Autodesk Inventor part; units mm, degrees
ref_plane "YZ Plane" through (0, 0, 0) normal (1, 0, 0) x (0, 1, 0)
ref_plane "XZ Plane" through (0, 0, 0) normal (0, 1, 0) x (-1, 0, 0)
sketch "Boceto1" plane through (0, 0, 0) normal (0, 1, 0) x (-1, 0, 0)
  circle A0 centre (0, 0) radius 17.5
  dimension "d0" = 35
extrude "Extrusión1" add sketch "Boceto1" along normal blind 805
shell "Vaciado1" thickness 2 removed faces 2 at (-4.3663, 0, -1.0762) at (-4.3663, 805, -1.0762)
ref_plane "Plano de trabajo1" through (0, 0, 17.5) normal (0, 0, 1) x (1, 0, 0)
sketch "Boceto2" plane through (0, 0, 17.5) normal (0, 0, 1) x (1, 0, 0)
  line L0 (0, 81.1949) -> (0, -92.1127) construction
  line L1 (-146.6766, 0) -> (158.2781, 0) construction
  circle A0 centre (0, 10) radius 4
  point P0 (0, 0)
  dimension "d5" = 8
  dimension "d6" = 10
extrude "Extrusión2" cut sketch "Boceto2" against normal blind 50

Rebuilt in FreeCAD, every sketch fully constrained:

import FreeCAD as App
import Part
import Sketcher

V = App.Vector


def faces_at(feature, points):
    """Names of the faces that lie closest to the given points."""
    faces = feature.Shape.Faces
    near = lambda p: min(range(len(faces)), key=lambda i: faces[i].distToShape(Part.Vertex(*p))[0])
    return sorted({f"Face{near(p) + 1}" for p in points})

doc = App.newDocument("Part")
params = doc.addObject("Spreadsheet::Sheet", "Params")
for row, (alias, value) in enumerate([
    ("sketch1_diameter", "35 mm"),
    ("pad1_length", "805 mm"),
    ("thickness_wall", "2 mm"),
    ("sketch2_diameter", "8 mm"),
    ("pocket1_length", "50 mm"),
], start=1):
    params.set(f"A{row}", alias)
    params.set(f"B{row}", "=" + value)
    params.setAlias(f"B{row}", alias)

body = doc.addObject("PartDesign::Body", "Body")

# Sketch on XZ plane
sketch1 = doc.addObject("Sketcher::SketchObject", "Sketch")
body.addObject(sketch1)
sketch1.AttachmentSupport = (doc.XZ_Plane, [""])
sketch1.MapMode = "FlatFace"
sketch1.addGeometry(Part.Circle(V(0, 0, 0), V(0, 0, 1), 18), False)
sketch1.addConstraint([
    Sketcher.Constraint("Coincident", 0, 3, -1, 1),
    Sketcher.Constraint("Diameter", 0, 35.0),
])
sketch1.setExpression("Constraints[1]", "Params.sketch1_diameter")
pad1 = doc.addObject("PartDesign::Pad", "Pad")
body.addObject(pad1)
pad1.Profile = sketch1
pad1.setExpression("Length", "Params.pad1_length")
pad1.Reversed = True
doc.recompute()

thickness = doc.addObject("PartDesign::Thickness", "Thickness")
body.addObject(thickness)
thickness.Base = (pad1, faces_at(pad1, [(-4.366, 0, -1.076), (-4.366, 805, -1.076)]))
thickness.setExpression("Value", "Params.thickness_wall")
thickness.Reversed = True
thickness.Join = "Intersection"

# Sketch on XY plane
sketch2 = doc.addObject("Sketcher::SketchObject", "Sketch001")
body.addObject(sketch2)
sketch2.AttachmentSupport = (doc.XY_Plane, [""])
sketch2.MapMode = "FlatFace"
sketch2.AttachmentOffset = App.Placement(V(0, 0, 17.5), App.Rotation())
sketch2.addGeometry(Part.Circle(V(0, 10, 0), V(0, 0, 1), 4), False)
sketch2.addConstraint([
    Sketcher.Constraint("PointOnObject", 0, 3, -2),
    Sketcher.Constraint("Diameter", 0, 8.0),
    Sketcher.Constraint("DistanceY", -1, 1, 0, 3, 10.0),
])
sketch2.setExpression("Constraints[1]", "Params.sketch2_diameter")
pocket1 = doc.addObject("PartDesign::Pocket", "Pocket")
body.addObject(pocket1)
pocket1.Profile = sketch2
pocket1.setExpression("Length", "Params.pocket1_length")

doc.recompute()
